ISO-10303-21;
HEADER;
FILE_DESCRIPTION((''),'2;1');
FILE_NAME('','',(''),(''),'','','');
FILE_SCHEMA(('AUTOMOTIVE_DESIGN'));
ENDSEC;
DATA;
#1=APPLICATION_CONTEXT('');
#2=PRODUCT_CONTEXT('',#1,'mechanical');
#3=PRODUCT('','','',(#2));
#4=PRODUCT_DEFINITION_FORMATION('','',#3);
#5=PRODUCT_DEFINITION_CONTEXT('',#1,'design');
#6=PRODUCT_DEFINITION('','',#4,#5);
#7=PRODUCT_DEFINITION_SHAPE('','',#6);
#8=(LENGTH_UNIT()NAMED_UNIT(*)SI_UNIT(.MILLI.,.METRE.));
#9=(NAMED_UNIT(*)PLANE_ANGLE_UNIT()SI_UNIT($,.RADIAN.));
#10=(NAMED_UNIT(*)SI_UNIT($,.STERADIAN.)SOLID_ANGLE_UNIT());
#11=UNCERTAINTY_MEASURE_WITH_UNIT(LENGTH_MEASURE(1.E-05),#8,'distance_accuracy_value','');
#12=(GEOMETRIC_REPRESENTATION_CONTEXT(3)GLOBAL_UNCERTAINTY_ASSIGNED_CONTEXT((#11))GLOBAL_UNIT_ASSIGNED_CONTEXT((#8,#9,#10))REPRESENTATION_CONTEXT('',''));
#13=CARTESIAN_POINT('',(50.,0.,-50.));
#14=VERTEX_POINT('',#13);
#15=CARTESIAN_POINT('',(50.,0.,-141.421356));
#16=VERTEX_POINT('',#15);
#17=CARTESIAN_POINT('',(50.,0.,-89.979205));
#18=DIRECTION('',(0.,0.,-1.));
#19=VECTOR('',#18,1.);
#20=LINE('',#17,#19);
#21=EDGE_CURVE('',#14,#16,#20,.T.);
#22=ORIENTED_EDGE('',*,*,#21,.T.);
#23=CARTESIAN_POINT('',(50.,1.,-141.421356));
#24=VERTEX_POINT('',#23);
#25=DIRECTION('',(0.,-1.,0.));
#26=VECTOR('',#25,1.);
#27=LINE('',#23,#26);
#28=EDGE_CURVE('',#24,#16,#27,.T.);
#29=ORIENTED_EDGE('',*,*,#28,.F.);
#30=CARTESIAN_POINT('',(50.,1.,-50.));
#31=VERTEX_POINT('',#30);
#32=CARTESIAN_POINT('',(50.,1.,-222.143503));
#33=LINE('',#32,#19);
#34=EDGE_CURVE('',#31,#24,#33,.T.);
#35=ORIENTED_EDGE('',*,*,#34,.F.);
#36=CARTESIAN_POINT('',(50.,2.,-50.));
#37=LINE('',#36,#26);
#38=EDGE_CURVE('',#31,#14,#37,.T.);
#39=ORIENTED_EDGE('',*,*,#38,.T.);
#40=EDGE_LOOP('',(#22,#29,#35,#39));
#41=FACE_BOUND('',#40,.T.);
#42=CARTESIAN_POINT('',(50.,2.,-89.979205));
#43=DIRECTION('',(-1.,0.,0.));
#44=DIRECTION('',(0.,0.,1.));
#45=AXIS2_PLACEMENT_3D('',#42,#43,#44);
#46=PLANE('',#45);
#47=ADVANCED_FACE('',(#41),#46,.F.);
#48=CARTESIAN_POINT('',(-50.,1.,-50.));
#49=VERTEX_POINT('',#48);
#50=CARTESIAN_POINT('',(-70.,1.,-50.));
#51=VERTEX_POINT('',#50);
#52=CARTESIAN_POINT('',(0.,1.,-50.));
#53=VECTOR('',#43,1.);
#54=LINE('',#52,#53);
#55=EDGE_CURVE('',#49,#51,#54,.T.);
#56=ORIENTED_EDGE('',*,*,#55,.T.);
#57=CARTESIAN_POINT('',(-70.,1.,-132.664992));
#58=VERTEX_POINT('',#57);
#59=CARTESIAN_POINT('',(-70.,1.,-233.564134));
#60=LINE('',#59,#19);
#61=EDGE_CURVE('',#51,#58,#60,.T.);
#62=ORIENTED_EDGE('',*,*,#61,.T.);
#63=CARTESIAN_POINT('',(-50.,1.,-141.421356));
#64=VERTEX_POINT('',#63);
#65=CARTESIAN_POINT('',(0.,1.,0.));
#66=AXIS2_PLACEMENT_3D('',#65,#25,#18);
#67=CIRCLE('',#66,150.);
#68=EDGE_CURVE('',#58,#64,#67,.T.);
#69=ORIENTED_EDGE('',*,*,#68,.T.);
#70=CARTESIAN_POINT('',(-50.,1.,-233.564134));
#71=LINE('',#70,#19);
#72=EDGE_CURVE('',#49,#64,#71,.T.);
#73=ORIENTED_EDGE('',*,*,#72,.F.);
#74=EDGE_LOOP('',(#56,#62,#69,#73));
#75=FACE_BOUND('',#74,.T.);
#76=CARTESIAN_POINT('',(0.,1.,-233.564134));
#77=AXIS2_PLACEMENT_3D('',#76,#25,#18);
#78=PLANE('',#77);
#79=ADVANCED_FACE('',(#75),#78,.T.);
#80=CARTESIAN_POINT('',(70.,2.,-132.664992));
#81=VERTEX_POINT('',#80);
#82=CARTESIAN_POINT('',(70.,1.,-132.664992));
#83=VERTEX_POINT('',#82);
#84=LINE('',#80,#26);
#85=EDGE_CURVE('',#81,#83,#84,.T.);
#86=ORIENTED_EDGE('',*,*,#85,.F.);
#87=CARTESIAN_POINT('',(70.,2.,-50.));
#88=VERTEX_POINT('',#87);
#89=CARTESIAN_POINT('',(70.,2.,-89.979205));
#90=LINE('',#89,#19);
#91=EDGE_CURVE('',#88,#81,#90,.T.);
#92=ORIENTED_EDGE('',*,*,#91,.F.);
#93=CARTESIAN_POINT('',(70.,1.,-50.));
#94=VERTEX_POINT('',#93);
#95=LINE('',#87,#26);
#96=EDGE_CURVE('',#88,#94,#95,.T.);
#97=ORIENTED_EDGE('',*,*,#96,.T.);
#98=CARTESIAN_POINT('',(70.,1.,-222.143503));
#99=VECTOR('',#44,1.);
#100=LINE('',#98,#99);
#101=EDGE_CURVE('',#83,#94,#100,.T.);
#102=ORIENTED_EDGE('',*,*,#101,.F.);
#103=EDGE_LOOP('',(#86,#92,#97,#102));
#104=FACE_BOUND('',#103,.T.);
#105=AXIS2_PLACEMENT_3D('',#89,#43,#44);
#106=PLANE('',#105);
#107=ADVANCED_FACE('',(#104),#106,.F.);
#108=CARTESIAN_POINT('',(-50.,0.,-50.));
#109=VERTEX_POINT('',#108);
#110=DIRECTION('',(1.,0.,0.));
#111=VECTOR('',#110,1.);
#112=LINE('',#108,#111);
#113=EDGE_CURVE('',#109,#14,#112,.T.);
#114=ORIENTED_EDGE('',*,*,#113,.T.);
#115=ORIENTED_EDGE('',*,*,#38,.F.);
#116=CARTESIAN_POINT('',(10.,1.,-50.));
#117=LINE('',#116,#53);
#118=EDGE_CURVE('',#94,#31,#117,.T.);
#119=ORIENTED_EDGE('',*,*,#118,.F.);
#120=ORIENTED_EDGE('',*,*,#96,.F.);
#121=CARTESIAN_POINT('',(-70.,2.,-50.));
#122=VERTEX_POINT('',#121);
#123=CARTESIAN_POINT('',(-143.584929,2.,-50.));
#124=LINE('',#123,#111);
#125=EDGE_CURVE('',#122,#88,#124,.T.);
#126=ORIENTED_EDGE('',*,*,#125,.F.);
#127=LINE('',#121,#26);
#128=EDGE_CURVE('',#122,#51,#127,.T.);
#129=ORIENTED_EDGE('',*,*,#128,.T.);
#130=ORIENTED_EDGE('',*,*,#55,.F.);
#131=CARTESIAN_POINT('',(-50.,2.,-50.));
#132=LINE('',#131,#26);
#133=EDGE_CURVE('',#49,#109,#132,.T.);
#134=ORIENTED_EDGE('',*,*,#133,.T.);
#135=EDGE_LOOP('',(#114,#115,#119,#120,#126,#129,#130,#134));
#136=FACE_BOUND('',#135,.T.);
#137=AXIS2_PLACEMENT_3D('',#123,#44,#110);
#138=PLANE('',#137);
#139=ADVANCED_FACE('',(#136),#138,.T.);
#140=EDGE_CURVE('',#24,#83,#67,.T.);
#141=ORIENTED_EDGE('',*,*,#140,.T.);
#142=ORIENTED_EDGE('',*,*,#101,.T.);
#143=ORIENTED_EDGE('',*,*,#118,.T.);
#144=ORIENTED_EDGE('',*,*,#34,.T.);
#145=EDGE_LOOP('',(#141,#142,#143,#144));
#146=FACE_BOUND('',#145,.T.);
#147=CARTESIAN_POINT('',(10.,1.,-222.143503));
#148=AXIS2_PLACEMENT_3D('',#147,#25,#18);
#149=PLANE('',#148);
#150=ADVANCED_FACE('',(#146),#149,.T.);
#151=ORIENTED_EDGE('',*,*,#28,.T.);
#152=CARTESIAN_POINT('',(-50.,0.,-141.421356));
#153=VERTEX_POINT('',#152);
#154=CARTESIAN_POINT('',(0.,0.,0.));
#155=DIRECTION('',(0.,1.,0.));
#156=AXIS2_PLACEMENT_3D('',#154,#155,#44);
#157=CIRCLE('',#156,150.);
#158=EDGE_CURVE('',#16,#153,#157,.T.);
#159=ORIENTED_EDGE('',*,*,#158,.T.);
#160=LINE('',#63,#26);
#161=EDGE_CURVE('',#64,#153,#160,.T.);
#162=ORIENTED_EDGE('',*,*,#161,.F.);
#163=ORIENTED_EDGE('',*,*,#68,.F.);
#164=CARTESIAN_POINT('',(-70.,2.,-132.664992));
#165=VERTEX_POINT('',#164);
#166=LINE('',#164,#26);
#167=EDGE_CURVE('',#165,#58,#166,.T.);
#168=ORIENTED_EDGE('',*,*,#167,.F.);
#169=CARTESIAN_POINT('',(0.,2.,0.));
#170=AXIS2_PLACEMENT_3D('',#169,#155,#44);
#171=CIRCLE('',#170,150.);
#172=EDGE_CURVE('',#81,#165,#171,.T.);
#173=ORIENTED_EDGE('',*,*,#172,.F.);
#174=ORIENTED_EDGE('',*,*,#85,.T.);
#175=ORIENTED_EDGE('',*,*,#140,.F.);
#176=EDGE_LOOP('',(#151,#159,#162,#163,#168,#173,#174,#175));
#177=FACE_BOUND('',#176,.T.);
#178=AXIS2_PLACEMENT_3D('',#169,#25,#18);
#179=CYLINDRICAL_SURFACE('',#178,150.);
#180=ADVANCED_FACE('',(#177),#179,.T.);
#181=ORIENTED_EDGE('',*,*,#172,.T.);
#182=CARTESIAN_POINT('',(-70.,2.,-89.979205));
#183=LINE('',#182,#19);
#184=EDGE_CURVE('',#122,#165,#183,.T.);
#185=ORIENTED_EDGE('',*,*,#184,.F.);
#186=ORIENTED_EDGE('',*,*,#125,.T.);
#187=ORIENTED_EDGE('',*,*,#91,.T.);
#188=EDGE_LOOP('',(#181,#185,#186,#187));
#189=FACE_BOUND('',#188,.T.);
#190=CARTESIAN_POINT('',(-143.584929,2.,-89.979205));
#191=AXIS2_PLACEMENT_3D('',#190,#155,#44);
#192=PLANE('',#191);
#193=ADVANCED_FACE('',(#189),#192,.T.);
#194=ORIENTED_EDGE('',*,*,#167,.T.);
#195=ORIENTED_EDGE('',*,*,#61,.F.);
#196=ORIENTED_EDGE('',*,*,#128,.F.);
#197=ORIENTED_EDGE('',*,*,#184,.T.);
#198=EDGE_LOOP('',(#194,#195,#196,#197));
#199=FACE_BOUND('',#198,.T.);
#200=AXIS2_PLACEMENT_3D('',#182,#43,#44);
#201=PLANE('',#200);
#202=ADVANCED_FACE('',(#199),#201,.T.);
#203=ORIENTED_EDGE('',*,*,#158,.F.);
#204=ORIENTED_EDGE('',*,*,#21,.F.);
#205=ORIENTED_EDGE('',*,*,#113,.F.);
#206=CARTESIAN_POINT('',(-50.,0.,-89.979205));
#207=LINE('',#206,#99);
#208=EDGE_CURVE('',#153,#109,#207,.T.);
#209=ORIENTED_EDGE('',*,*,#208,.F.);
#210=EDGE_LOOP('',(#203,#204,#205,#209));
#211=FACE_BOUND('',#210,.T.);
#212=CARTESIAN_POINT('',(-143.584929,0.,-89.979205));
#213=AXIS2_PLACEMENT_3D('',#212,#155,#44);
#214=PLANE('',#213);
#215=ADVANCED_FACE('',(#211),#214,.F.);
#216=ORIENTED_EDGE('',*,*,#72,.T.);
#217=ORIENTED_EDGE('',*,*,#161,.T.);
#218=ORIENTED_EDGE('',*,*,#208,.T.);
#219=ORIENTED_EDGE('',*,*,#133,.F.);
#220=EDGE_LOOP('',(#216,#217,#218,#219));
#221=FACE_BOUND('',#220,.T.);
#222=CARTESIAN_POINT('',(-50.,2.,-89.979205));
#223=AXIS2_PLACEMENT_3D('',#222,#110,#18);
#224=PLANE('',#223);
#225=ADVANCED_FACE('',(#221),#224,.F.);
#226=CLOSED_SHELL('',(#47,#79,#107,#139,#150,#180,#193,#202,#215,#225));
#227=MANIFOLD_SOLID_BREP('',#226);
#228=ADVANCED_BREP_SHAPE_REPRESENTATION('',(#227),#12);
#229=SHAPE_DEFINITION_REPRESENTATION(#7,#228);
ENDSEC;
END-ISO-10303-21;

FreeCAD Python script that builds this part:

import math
import FreeCAD as App
import Part
import Sketcher
Q = App.Units.Quantity


def add_polygon(sketch, points):
    """Adds a closed chain of lines whose ends are joined by coincident constraints."""
    first, n = sketch.GeometryCount, len(points)
    for a, b in zip(points, points[1:] + points[:1]):
        sketch.addGeometry(Part.LineSegment(App.Vector(*a, 0), App.Vector(*b, 0)), False)
    for i in range(n):
        sketch.addConstraint(Sketcher.Constraint("Coincident", first + i, 2, first + (i + 1) % n, 1))

doc = App.newDocument("Part")
body = doc.addObject("PartDesign::Body", "Body")

# Sketch on XZ plane
sketch1 = body.newObject("Sketcher::SketchObject", "Sketch")
sketch1.AttachmentSupport = (doc.getObject("XZ_Plane"), [""])
sketch1.MapMode = "FlatFace"
sketch1.addGeometry(Part.ArcOfCircle(Part.Circle(App.Vector(0, 0, 0), App.Vector(0, 0, 1), 150), math.radians(-109.471221), math.radians(-70.528779)), False)
sketch1.addGeometry(Part.ArcOfCircle(Part.Circle(App.Vector(0, 0, 0), App.Vector(0, 0, 1), 150), math.radians(-117.818139), math.radians(-109.471221)), False)
sketch1.addGeometry(Part.LineSegment(App.Vector(-70, -132.664992, 0), App.Vector(-70, -50, 0)), False)
sketch1.addGeometry(Part.LineSegment(App.Vector(-70, -50, 0), App.Vector(-50, -50, 0)), False)
sketch1.addGeometry(Part.LineSegment(App.Vector(-50, -50, 0), App.Vector(-50, -29.95841, 0)), False)
sketch1.addGeometry(Part.LineSegment(App.Vector(-50, -29.95841, 0), App.Vector(50, -29.95841, 0)), False)
sketch1.addGeometry(Part.LineSegment(App.Vector(50, -29.95841, 0), App.Vector(50, -50, 0)), False)
sketch1.addGeometry(Part.LineSegment(App.Vector(50, -50, 0), App.Vector(70, -50, 0)), False)
sketch1.addGeometry(Part.LineSegment(App.Vector(70, -50, 0), App.Vector(70, -132.664992, 0)), False)
sketch1.addGeometry(Part.ArcOfCircle(Part.Circle(App.Vector(0, 0, 0), App.Vector(0, 0, 1), 150), math.radians(-70.528779), math.radians(-62.181861)), False)
sketch1.addConstraint(Sketcher.Constraint("Tangent", 0, 1, 1, 2))
sketch1.addConstraint(Sketcher.Constraint("Coincident", 1, 1, 2, 1))
sketch1.addConstraint(Sketcher.Constraint("Coincident", 2, 2, 3, 1))
sketch1.addConstraint(Sketcher.Constraint("Coincident", 3, 2, 4, 1))
sketch1.addConstraint(Sketcher.Constraint("Coincident", 4, 2, 5, 1))
sketch1.addConstraint(Sketcher.Constraint("Coincident", 5, 2, 6, 1))
sketch1.addConstraint(Sketcher.Constraint("Coincident", 6, 2, 7, 1))
sketch1.addConstraint(Sketcher.Constraint("Coincident", 7, 2, 8, 1))
sketch1.addConstraint(Sketcher.Constraint("Coincident", 8, 2, 9, 2))
sketch1.addConstraint(Sketcher.Constraint("Tangent", 9, 1, 0, 2))
sketch1.addConstraint(Sketcher.Constraint("Vertical", 2))
sketch1.addConstraint(Sketcher.Constraint("Horizontal", 3))
sketch1.addConstraint(Sketcher.Constraint("Vertical", 4))
sketch1.addConstraint(Sketcher.Constraint("Horizontal", 5))
sketch1.addConstraint(Sketcher.Constraint("Vertical", 6))
sketch1.addConstraint(Sketcher.Constraint("Horizontal", 7))
sketch1.addConstraint(Sketcher.Constraint("Vertical", 8))
sketch1.addConstraint(Sketcher.Constraint("Coincident", 0, 3, -1, 1))
sketch1.addConstraint(Sketcher.Constraint("Equal", 0, 1))
sketch1.addConstraint(Sketcher.Constraint("Equal", 1, 9))
sketch1.addConstraint(Sketcher.Constraint("Symmetric", 3, 2, 6, 2, -2))
sketch1.addConstraint(Sketcher.Constraint("Horizontal", 1, 1, 8, 2))
sketch1.addConstraint(Sketcher.Constraint("Horizontal", 0, 1, 9, 1))
sketch1.addConstraint(Sketcher.Constraint("Vertical", 0, 1, 3, 2))
sketch1.addConstraint(Sketcher.Constraint("Radius", 0, Q("150 mm")))
sketch1.addConstraint(Sketcher.Constraint("DistanceX", 3, 1, 3, 2, Q("20 mm")))
sketch1.addConstraint(Sketcher.Constraint("DistanceX", 5, 1, 5, 2, Q("100 mm")))
sketch1.addConstraint(Sketcher.Constraint("DistanceY", 2, 2, -1, 1, Q("50 mm")))
sketch1.addConstraint(Sketcher.Constraint("DistanceY", 4, 1, 4, 2, Q("20.04159 mm")))
pad1 = body.newObject("PartDesign::Pad", "Pad")
pad1.Profile = sketch1
pad1.Length = 2
pad1.Reversed = True

# Sketch on XZ plane
sketch2 = body.newObject("Sketcher::SketchObject", "Sketch001")
sketch2.AttachmentSupport = (doc.getObject("XZ_Plane"), [""])
sketch2.MapMode = "FlatFace"
sketch2.addGeometry(Part.LineSegment(App.Vector(50, -50, 0), App.Vector(-50, -50, 0)), False)
sketch2.addGeometry(Part.LineSegment(App.Vector(-50, -50, 0), App.Vector(-50, -141.421356, 0)), False)
sketch2.addGeometry(Part.ArcOfCircle(Part.Circle(App.Vector(0, 0, 0), App.Vector(0, 0, 1), 150), math.radians(-109.471221), math.radians(-70.528779)), False)
sketch2.addGeometry(Part.LineSegment(App.Vector(50, -141.421356, 0), App.Vector(50, -50, 0)), False)
sketch2.addConstraint(Sketcher.Constraint("Coincident", 0, 2, 1, 1))
sketch2.addConstraint(Sketcher.Constraint("Coincident", 1, 2, 2, 1))
sketch2.addConstraint(Sketcher.Constraint("Coincident", 2, 2, 3, 1))
sketch2.addConstraint(Sketcher.Constraint("Coincident", 3, 2, 0, 1))
sketch2.addConstraint(Sketcher.Constraint("Horizontal", 0))
sketch2.addConstraint(Sketcher.Constraint("Vertical", 1))
sketch2.addConstraint(Sketcher.Constraint("Vertical", 3))
sketch2.addConstraint(Sketcher.Constraint("Coincident", 2, 3, -1, 1))
sketch2.addConstraint(Sketcher.Constraint("Horizontal", 1, 2, 2, 2))
sketch2.addConstraint(Sketcher.Constraint("Radius", 2, Q("150 mm")))
sketch2.addConstraint(Sketcher.Constraint("DistanceX", 0, 2, 0, 1, Q("100 mm")))
sketch2.addConstraint(Sketcher.Constraint("DistanceY", 0, 2, -1, 1, Q("50 mm")))
pad2 = body.newObject("PartDesign::Pad", "Pad001")
pad2.Profile = sketch2
pad2.Length = 1
pad2.Reversed = True

# Sketch on XZ plane
sketch3 = body.newObject("Sketcher::SketchObject", "Sketch002")
sketch3.AttachmentSupport = (doc.getObject("XZ_Plane"), [""])
sketch3.MapMode = "FlatFace"
sketch3.addGeometry(Part.LineSegment(App.Vector(-50, -141.421356, 0), App.Vector(-50, -50, 0)), False)
sketch3.addGeometry(Part.LineSegment(App.Vector(-50, -50, 0), App.Vector(-70, -50, 0)), False)
sketch3.addGeometry(Part.LineSegment(App.Vector(-70, -50, 0), App.Vector(-70, -132.664992, 0)), False)
sketch3.addGeometry(Part.ArcOfCircle(Part.Circle(App.Vector(0, 0, 0), App.Vector(0, 0, 1), 150), math.radians(-117.818139), math.radians(-109.471221)), False)
sketch3.addConstraint(Sketcher.Constraint("Coincident", 0, 2, 1, 1))
sketch3.addConstraint(Sketcher.Constraint("Coincident", 1, 2, 2, 1))
sketch3.addConstraint(Sketcher.Constraint("Coincident", 2, 2, 3, 1))
sketch3.addConstraint(Sketcher.Constraint("Coincident", 3, 2, 0, 1))
sketch3.addConstraint(Sketcher.Constraint("Vertical", 0))
sketch3.addConstraint(Sketcher.Constraint("Horizontal", 1))
sketch3.addConstraint(Sketcher.Constraint("Vertical", 2))
sketch3.addConstraint(Sketcher.Constraint("Coincident", 3, 3, -1, 1))
sketch3.addConstraint(Sketcher.Constraint("Radius", 3, Q("150 mm")))
sketch3.addConstraint(Sketcher.Constraint("DistanceX", 1, 2, 1, 1, Q("20 mm")))
sketch3.addConstraint(Sketcher.Constraint("DistanceX", 0, 2, -1, 1, Q("50 mm")))
sketch3.addConstraint(Sketcher.Constraint("DistanceY", 0, 2, -1, 1, Q("50 mm")))
pocket1 = body.newObject("PartDesign::Pocket", "Pocket")
pocket1.Profile = sketch3
pocket1.Length = 1

# Sketch on XZ plane
sketch4 = body.newObject("Sketcher::SketchObject", "Sketch003")
sketch4.AttachmentSupport = (doc.getObject("XZ_Plane"), [""])
sketch4.MapMode = "FlatFace"
sketch4.addGeometry(Part.ArcOfCircle(Part.Circle(App.Vector(0, 0, 0), App.Vector(0, 0, 1), 150), math.radians(-70.528779), math.radians(-62.181861)), False)
sketch4.addGeometry(Part.LineSegment(App.Vector(70, -132.664992, 0), App.Vector(70, -50, 0)), False)
sketch4.addGeometry(Part.LineSegment(App.Vector(70, -50, 0), App.Vector(50, -50, 0)), False)
sketch4.addGeometry(Part.LineSegment(App.Vector(50, -50, 0), App.Vector(50, -141.421356, 0)), False)
sketch4.addConstraint(Sketcher.Constraint("Coincident", 0, 2, 1, 1))
sketch4.addConstraint(Sketcher.Constraint("Coincident", 1, 2, 2, 1))
sketch4.addConstraint(Sketcher.Constraint("Coincident", 2, 2, 3, 1))
sketch4.addConstraint(Sketcher.Constraint("Coincident", 3, 2, 0, 1))
sketch4.addConstraint(Sketcher.Constraint("Vertical", 1))
sketch4.addConstraint(Sketcher.Constraint("Horizontal", 2))
sketch4.addConstraint(Sketcher.Constraint("Vertical", 3))
sketch4.addConstraint(Sketcher.Constraint("Coincident", 0, 3, -1, 1))
sketch4.addConstraint(Sketcher.Constraint("Radius", 0, Q("150 mm")))
sketch4.addConstraint(Sketcher.Constraint("DistanceX", 2, 2, 2, 1, Q("20 mm")))
sketch4.addConstraint(Sketcher.Constraint("DistanceX", -1, 1, 0, 2, Q("70 mm")))
sketch4.addConstraint(Sketcher.Constraint("DistanceY", 1, 2, -1, 1, Q("50 mm")))
pocket2 = body.newObject("PartDesign::Pocket", "Pocket001")
pocket2.Profile = sketch4
pocket2.Length = 1

# Sketch on XZ plane
sketch5 = body.newObject("Sketcher::SketchObject", "Sketch004")
sketch5.AttachmentSupport = (doc.getObject("XZ_Plane"), [""])
sketch5.MapMode = "FlatFace"
add_polygon(sketch5, [(-50, -29.95841), (-50, -50), (50, -50), (50, -29.95841)])  # lines 0-3
sketch5.addConstraint(Sketcher.Constraint("Vertical", 0))
sketch5.addConstraint(Sketcher.Constraint("Horizontal", 1))
sketch5.addConstraint(Sketcher.Constraint("Vertical", 2))
sketch5.addConstraint(Sketcher.Constraint("Horizontal", 3))
sketch5.addConstraint(Sketcher.Constraint("DistanceX", 1, 1, 1, 2, Q("100 mm")))
sketch5.addConstraint(Sketcher.Constraint("DistanceX", 0, 2, -1, 1, Q("50 mm")))
sketch5.addConstraint(Sketcher.Constraint("DistanceY", 0, 2, -1, 1, Q("50 mm")))
sketch5.addConstraint(Sketcher.Constraint("DistanceY", 0, 2, 0, 1, Q("20.04159 mm")))
pocket3 = body.newObject("PartDesign::Pocket", "Pocket002")
pocket3.Profile = sketch5
pocket3.Type = "ThroughAll"

doc.recompute()
